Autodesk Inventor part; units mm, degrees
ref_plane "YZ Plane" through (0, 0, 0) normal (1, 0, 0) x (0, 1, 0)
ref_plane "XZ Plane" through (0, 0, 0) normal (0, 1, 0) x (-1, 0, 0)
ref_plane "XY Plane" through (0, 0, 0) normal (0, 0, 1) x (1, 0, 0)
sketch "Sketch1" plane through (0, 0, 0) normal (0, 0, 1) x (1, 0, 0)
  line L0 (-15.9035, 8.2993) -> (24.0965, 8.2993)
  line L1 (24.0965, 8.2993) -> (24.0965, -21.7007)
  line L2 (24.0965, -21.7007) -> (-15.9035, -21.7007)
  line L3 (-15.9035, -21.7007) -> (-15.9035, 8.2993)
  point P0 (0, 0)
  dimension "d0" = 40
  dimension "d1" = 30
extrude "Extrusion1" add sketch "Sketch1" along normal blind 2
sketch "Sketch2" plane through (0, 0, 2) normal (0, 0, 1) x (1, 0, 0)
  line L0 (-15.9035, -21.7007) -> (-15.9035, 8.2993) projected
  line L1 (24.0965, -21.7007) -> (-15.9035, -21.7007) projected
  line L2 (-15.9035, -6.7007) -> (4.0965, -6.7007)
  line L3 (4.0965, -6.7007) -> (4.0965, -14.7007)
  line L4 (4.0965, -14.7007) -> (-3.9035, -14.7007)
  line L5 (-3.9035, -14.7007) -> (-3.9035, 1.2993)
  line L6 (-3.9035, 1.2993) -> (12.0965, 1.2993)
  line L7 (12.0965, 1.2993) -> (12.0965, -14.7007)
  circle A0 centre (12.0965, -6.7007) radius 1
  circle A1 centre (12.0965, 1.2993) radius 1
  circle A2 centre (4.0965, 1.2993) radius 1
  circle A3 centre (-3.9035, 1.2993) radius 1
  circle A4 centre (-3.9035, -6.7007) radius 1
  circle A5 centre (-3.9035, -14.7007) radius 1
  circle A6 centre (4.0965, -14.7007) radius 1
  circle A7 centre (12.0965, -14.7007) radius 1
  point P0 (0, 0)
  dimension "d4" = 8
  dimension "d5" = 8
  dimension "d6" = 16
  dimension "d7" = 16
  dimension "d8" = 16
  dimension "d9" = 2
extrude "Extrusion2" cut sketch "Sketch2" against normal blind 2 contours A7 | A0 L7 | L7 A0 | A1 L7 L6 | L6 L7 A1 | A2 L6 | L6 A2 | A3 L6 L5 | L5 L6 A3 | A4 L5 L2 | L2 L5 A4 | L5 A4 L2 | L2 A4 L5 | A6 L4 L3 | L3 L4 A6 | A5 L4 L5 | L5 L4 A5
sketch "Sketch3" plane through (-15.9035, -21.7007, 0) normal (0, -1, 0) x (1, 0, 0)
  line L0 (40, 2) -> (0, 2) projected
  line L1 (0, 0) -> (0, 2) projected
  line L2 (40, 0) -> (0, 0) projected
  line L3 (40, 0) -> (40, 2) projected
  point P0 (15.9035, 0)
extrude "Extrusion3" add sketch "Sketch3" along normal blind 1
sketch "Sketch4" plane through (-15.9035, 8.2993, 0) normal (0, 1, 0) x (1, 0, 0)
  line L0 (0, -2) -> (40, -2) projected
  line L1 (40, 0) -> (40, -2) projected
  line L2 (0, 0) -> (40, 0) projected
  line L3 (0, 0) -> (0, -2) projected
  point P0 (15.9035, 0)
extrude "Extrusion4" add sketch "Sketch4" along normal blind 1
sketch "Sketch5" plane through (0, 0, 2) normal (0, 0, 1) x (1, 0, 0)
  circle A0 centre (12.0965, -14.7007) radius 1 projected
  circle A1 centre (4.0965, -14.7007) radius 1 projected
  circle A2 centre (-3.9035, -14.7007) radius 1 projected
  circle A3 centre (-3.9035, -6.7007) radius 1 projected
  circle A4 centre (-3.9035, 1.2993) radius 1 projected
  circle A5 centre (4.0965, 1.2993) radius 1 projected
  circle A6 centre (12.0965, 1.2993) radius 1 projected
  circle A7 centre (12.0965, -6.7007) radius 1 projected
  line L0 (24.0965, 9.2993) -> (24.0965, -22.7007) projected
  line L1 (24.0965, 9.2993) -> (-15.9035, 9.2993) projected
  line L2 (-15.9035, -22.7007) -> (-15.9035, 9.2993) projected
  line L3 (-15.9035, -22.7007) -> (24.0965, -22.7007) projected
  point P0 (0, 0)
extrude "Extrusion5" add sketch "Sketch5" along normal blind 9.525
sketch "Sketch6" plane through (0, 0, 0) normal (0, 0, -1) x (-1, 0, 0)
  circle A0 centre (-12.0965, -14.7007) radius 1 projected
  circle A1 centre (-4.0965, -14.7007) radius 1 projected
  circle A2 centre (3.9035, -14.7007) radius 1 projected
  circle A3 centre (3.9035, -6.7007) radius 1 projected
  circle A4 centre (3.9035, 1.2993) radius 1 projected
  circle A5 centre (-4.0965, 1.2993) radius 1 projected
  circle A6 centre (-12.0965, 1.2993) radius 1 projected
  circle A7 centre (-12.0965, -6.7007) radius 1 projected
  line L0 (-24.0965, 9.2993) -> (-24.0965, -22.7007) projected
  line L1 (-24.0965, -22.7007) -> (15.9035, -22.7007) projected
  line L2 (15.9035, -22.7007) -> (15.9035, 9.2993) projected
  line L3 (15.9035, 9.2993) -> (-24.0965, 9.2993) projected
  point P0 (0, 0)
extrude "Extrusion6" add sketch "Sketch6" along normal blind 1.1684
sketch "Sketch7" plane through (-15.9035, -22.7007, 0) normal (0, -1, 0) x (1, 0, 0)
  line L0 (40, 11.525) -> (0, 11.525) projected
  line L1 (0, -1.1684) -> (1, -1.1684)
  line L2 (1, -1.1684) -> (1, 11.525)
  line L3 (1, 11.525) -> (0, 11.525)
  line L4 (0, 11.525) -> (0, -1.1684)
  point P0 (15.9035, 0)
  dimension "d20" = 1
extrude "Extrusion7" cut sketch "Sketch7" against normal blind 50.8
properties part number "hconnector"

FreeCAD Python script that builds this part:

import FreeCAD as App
import Part
import Sketcher
from FreeCAD import Vector

doc = App.newDocument("Part")
body = doc.addObject("PartDesign::Body", "Body")

# Sketch on XY plane
sketch1 = doc.addObject("Sketcher::SketchObject", "Sketch")
body.addObject(sketch1)
sketch1.AttachmentSupport = (doc.XY_Plane, [""])
sketch1.MapMode = "FlatFace"
sketch1.addGeometry([
    Part.LineSegment(Vector(24, 8, 0), Vector(-16, 8, 0)),
    Part.LineSegment(Vector(-16, 8, 0), Vector(-16, -22, 0)),
    Part.LineSegment(Vector(-16, -22, 0), Vector(24, -22, 0)),
    Part.LineSegment(Vector(24, -22, 0), Vector(24, 8, 0)),
], False)
sketch1.addConstraint([
    Sketcher.Constraint("Coincident", 0, 2, 1, 1),
    Sketcher.Constraint("Coincident", 1, 2, 2, 1),
    Sketcher.Constraint("Coincident", 2, 2, 3, 1),
    Sketcher.Constraint("Coincident", 3, 2, 0, 1),
    Sketcher.Constraint("Horizontal", 0),
    Sketcher.Constraint("Vertical", 1),
    Sketcher.Constraint("Horizontal", 2),
    Sketcher.Constraint("Vertical", 3),
    Sketcher.Constraint("DistanceX", 0, 2, 0, 1, 40.0),
    Sketcher.Constraint("DistanceY", 1, 2, 1, 1, 30.0),
    Sketcher.Constraint("DistanceX", 0, 2, -1, 1, 15.9035),
    Sketcher.Constraint("DistanceY", -1, 1, 0, 2, 8.2993),
])
pad1 = doc.addObject("PartDesign::Pad", "Pad")
body.addObject(pad1)
pad1.Profile = sketch1
pad1.Length = 2

# Sketch on XY plane
sketch2 = doc.addObject("Sketcher::SketchObject", "Sketch001")
body.addObject(sketch2)
sketch2.AttachmentSupport = (doc.XY_Plane, [""])
sketch2.MapMode = "FlatFace"
sketch2.AttachmentOffset = App.Placement(Vector(0, 0, 2), App.Rotation())
sketch2.addGeometry([
    Part.Circle(Vector(12.1, -14.7, 0), Vector(0, 0, 1), 1),  # 0
    Part.Circle(Vector(12.1, -6.7, 0), Vector(0, 0, 1), 1),  # 1
    Part.Circle(Vector(12.1, 1.3, 0), Vector(0, 0, 1), 1),  # 2
    Part.Circle(Vector(4.1, 1.3, 0), Vector(0, 0, 1), 1),  # 3
    Part.Circle(Vector(-3.9, 1.3, 0), Vector(0, 0, 1), 1),  # 4
    Part.Circle(Vector(-3.9, -6.7, 0), Vector(0, 0, 1), 1),  # 5
    Part.Circle(Vector(4.1, -14.7, 0), Vector(0, 0, 1), 1),  # 6
    Part.Circle(Vector(-3.9, -14.7, 0), Vector(0, 0, 1), 1),  # 7
], False)
sketch2.addConstraint([
    Sketcher.Constraint("Equal", 0, 1),
    Sketcher.Constraint("Equal", 1, 2),
    Sketcher.Constraint("Equal", 2, 3),
    Sketcher.Constraint("Equal", 3, 4),
    Sketcher.Constraint("Equal", 4, 5),
    Sketcher.Constraint("Equal", 5, 6),
    Sketcher.Constraint("Equal", 6, 7),
    Sketcher.Constraint("Horizontal", 2, 3, 3, 3),
    Sketcher.Constraint("Horizontal", 3, 3, 4, 3),
    Sketcher.Constraint("Horizontal", 1, 3, 5, 3),
    Sketcher.Constraint("Horizontal", 0, 3, 6, 3),
    Sketcher.Constraint("Horizontal", 6, 3, 7, 3),
    Sketcher.Constraint("Vertical", 0, 3, 1, 3),
    Sketcher.Constraint("Vertical", 1, 3, 2, 3),
    Sketcher.Constraint("Vertical", 4, 3, 5, 3),
    Sketcher.Constraint("Vertical", 3, 3, 6, 3),
    Sketcher.Constraint("Vertical", 5, 3, 7, 3),
    Sketcher.Constraint("Diameter", 0, 2.0),
    Sketcher.Constraint("DistanceY", 0, 3, 1, 3, 8.0),
    Sketcher.Constraint("DistanceY", 1, 3, 2, 3, 8.0),
    Sketcher.Constraint("DistanceX", 3, 3, 2, 3, 8.0),
    Sketcher.Constraint("DistanceX", 4, 3, 3, 3, 8.0),
    Sketcher.Constraint("DistanceX", -1, 1, 0, 3, 12.0965),
    Sketcher.Constraint("DistanceY", 0, 3, -1, 1, 14.7007),
])
pocket1 = doc.addObject("PartDesign::Pocket", "Pocket")
body.addObject(pocket1)
pocket1.Profile = sketch2
pocket1.Length = 2

# Sketch on XZ plane
sketch3 = doc.addObject("Sketcher::SketchObject", "Sketch002")
body.addObject(sketch3)
sketch3.AttachmentSupport = (doc.XZ_Plane, [""])
sketch3.MapMode = "FlatFace"
sketch3.AttachmentOffset = App.Placement(Vector(0, 0, 21.7007), App.Rotation())
sketch3.addGeometry([
    Part.LineSegment(Vector(24.1, 0, 0), Vector(24.1, 2, 0)),
    Part.LineSegment(Vector(24.1, 2, 0), Vector(-15.9, 2, 0)),
    Part.LineSegment(Vector(-15.9, 2, 0), Vector(-15.9, 0, 0)),
    Part.LineSegment(Vector(-15.9, 0, 0), Vector(24.1, 0, 0)),
], False)
sketch3.addConstraint([
    Sketcher.Constraint("Coincident", 0, 2, 1, 1),
    Sketcher.Constraint("Coincident", 1, 2, 2, 1),
    Sketcher.Constraint("Coincident", 2, 2, 3, 1),
    Sketcher.Constraint("Coincident", 3, 2, 0, 1),
    Sketcher.Constraint("Vertical", 0),
    Sketcher.Constraint("Horizontal", 1),
    Sketcher.Constraint("Vertical", 2),
    Sketcher.Constraint("Horizontal", 3),
    Sketcher.Constraint("PointOnObject", 2, 2, -1),
    Sketcher.Constraint("DistanceX", 1, 2, 1, 1, 40.0),
    Sketcher.Constraint("DistanceY", 0, 1, 0, 2, 2.0),
    Sketcher.Constraint("DistanceX", -1, 1, 0, 2, 24.0965),
])
pad2 = doc.addObject("PartDesign::Pad", "Pad001")
body.addObject(pad2)
pad2.Profile = sketch3
pad2.Length = 1

# Sketch on XZ plane
sketch4 = doc.addObject("Sketcher::SketchObject", "Sketch003")
body.addObject(sketch4)
sketch4.AttachmentSupport = (doc.XZ_Plane, [""])
sketch4.MapMode = "FlatFace"
sketch4.AttachmentOffset = App.Placement(Vector(0, 0, -8.2993), App.Rotation())
sketch4.addGeometry([
    Part.LineSegment(Vector(-15.9, 0, 0), Vector(-15.9, 2, 0)),
    Part.LineSegment(Vector(-15.9, 2, 0), Vector(24.1, 2, 0)),
    Part.LineSegment(Vector(24.1, 2, 0), Vector(24.1, 0, 0)),
    Part.LineSegment(Vector(24.1, 0, 0), Vector(-15.9, 0, 0)),
], False)
sketch4.addConstraint([
    Sketcher.Constraint("Coincident", 0, 2, 1, 1),
    Sketcher.Constraint("Coincident", 1, 2, 2, 1),
    Sketcher.Constraint("Coincident", 2, 2, 3, 1),
    Sketcher.Constraint("Coincident", 3, 2, 0, 1),
    Sketcher.Constraint("Vertical", 0),
    Sketcher.Constraint("Horizontal", 1),
    Sketcher.Constraint("Vertical", 2),
    Sketcher.Constraint("Horizontal", 3),
    Sketcher.Constraint("PointOnObject", 2, 2, -1),
    Sketcher.Constraint("DistanceX", 1, 1, 1, 2, 40.0),
    Sketcher.Constraint("DistanceY", 0, 1, 0, 2, 2.0),
    Sketcher.Constraint("DistanceX", 0, 2, -1, 1, 15.9035),
])
pad3 = doc.addObject("PartDesign::Pad", "Pad002")
body.addObject(pad3)
pad3.Profile = sketch4
pad3.Length = 1
pad3.Reversed = True

# Sketch on XY plane
sketch5 = doc.addObject("Sketcher::SketchObject", "Sketch004")
body.addObject(sketch5)
sketch5.AttachmentSupport = (doc.XY_Plane, [""])
sketch5.MapMode = "FlatFace"
sketch5.AttachmentOffset = App.Placement(Vector(0, 0, 2), App.Rotation())
sketch5.addGeometry([
    Part.LineSegment(Vector(24.1, -22.7, 0), Vector(24.1, 9.3, 0)),  # 0
    Part.LineSegment(Vector(24.1, 9.3, 0), Vector(-15.9, 9.3, 0)),  # 1
    Part.LineSegment(Vector(-15.9, 9.3, 0), Vector(-15.9, -22.7, 0)),  # 2
    Part.LineSegment(Vector(-15.9, -22.7, 0), Vector(24.1, -22.7, 0)),  # 3
    Part.Circle(Vector(-3.9, -14.7, 0), Vector(0, 0, 1), 1),  # 4
    Part.Circle(Vector(4.1, -14.7, 0), Vector(0, 0, 1), 1),  # 5
    Part.Circle(Vector(12.1, -14.7, 0), Vector(0, 0, 1), 1),  # 6
    Part.Circle(Vector(-3.9, -6.7, 0), Vector(0, 0, 1), 1),  # 7
    Part.Circle(Vector(-3.9, 1.3, 0), Vector(0, 0, 1), 1),  # 8
    Part.Circle(Vector(12.1, -6.7, 0), Vector(0, 0, 1), 1),  # 9
    Part.Circle(Vector(4.1, 1.3, 0), Vector(0, 0, 1), 1),  # 10
    Part.Circle(Vector(12.1, 1.3, 0), Vector(0, 0, 1), 1),  # 11
], False)
sketch5.addConstraint([
    Sketcher.Constraint("Coincident", 0, 2, 1, 1),
    Sketcher.Constraint("Coincident", 1, 2, 2, 1),
    Sketcher.Constraint("Coincident", 2, 2, 3, 1),
    Sketcher.Constraint("Coincident", 3, 2, 0, 1),
    Sketcher.Constraint("Vertical", 0),
    Sketcher.Constraint("Horizontal", 1),
    Sketcher.Constraint("Vertical", 2),
    Sketcher.Constraint("Horizontal", 3),
    Sketcher.Constraint("Equal", 4, 5),
    Sketcher.Constraint("Equal", 5, 6),
    Sketcher.Constraint("Equal", 6, 7),
    Sketcher.Constraint("Equal", 7, 8),
    Sketcher.Constraint("Equal", 8, 9),
    Sketcher.Constraint("Equal", 9, 10),
    Sketcher.Constraint("Equal", 10, 11),
    Sketcher.Constraint("Horizontal", 4, 3, 5, 3),
    Sketcher.Constraint("Horizontal", 5, 3, 6, 3),
    Sketcher.Constraint("Horizontal", 7, 3, 9, 3),
    Sketcher.Constraint("Horizontal", 8, 3, 10, 3),
    Sketcher.Constraint("Horizontal", 10, 3, 11, 3),
    Sketcher.Constraint("Vertical", 4, 3, 7, 3),
    Sketcher.Constraint("Vertical", 7, 3, 8, 3),
    Sketcher.Constraint("Vertical", 6, 3, 9, 3),
    Sketcher.Constraint("Vertical", 5, 3, 10, 3),
    Sketcher.Constraint("Vertical", 9, 3, 11, 3),
    Sketcher.Constraint("Diameter", 4, 2.0),
    Sketcher.Constraint("DistanceX", 1, 2, 1, 1, 40.0),
    Sketcher.Constraint("DistanceY", 0, 1, 0, 2, 32.0),
    Sketcher.Constraint("DistanceX", 4, 3, 5, 3, 8.0),
    Sketcher.Constraint("DistanceX", 5, 3, 6, 3, 8.0),
    Sketcher.Constraint("DistanceY", 4, 3, 7, 3, 8.0),
    Sketcher.Constraint("DistanceY", 7, 3, 8, 3, 8.0),
    Sketcher.Constraint("DistanceX", 11, 3, 0, 2, 12.0),
    Sketcher.Constraint("DistanceY", 11, 3, 0, 2, 8.0),
    Sketcher.Constraint("DistanceX", 4, 3, -1, 1, 3.9035),
    Sketcher.Constraint("DistanceY", 4, 3, -1, 1, 14.7007),
])
pad4 = doc.addObject("PartDesign::Pad", "Pad003")
body.addObject(pad4)
pad4.Profile = sketch5
pad4.Length = 9.525

# Sketch on XY plane
sketch6 = doc.addObject("Sketcher::SketchObject", "Sketch005")
body.addObject(sketch6)
sketch6.AttachmentSupport = (doc.XY_Plane, [""])
sketch6.MapMode = "FlatFace"
sketch6.addGeometry([
    Part.LineSegment(Vector(-15.9, 9.3, 0), Vector(24.1, 9.3, 0)),  # 0
    Part.LineSegment(Vector(24.1, 9.3, 0), Vector(24.1, -22.7, 0)),  # 1
    Part.LineSegment(Vector(24.1, -22.7, 0), Vector(-15.9, -22.7, 0)),  # 2
    Part.LineSegment(Vector(-15.9, -22.7, 0), Vector(-15.9, 9.3, 0)),  # 3
    Part.Circle(Vector(12.1, -14.7, 0), Vector(0, 0, 1), 1),  # 4
    Part.Circle(Vector(4.1, -14.7, 0), Vector(0, 0, 1), 1),  # 5
    Part.Circle(Vector(-3.9, -14.7, 0), Vector(0, 0, 1), 1),  # 6
    Part.Circle(Vector(12.1, -6.7, 0), Vector(0, 0, 1), 1),  # 7
    Part.Circle(Vector(12.1, 1.3, 0), Vector(0, 0, 1), 1),  # 8
    Part.Circle(Vector(-3.9, -6.7, 0), Vector(0, 0, 1), 1),  # 9
    Part.Circle(Vector(4.1, 1.3, 0), Vector(0, 0, 1), 1),  # 10
    Part.Circle(Vector(-3.9, 1.3, 0), Vector(0, 0, 1), 1),  # 11
], False)
sketch6.addConstraint([
    Sketcher.Constraint("Coincident", 0, 2, 1, 1),
    Sketcher.Constraint("Coincident", 1, 2, 2, 1),
    Sketcher.Constraint("Coincident", 2, 2, 3, 1),
    Sketcher.Constraint("Coincident", 3, 2, 0, 1),
    Sketcher.Constraint("Horizontal", 0),
    Sketcher.Constraint("Vertical", 1),
    Sketcher.Constraint("Horizontal", 2),
    Sketcher.Constraint("Vertical", 3),
    Sketcher.Constraint("Equal", 4, 5),
    Sketcher.Constraint("Equal", 5, 6),
    Sketcher.Constraint("Equal", 6, 7),
    Sketcher.Constraint("Equal", 7, 8),
    Sketcher.Constraint("Equal", 8, 9),
    Sketcher.Constraint("Equal", 9, 10),
    Sketcher.Constraint("Equal", 10, 11),
    Sketcher.Constraint("Horizontal", 4, 3, 5, 3),
    Sketcher.Constraint("Horizontal", 5, 3, 6, 3),
    Sketcher.Constraint("Horizontal", 7, 3, 9, 3),
    Sketcher.Constraint("Horizontal", 8, 3, 10, 3),
    Sketcher.Constraint("Horizontal", 10, 3, 11, 3),
    Sketcher.Constraint("Vertical", 4, 3, 7, 3),
    Sketcher.Constraint("Vertical", 7, 3, 8, 3),
    Sketcher.Constraint("Vertical", 6, 3, 9, 3),
    Sketcher.Constraint("Vertical", 5, 3, 10, 3),
    Sketcher.Constraint("Vertical", 9, 3, 11, 3),
    Sketcher.Constraint("Diameter", 4, 2.0),
    Sketcher.Constraint("DistanceX", 0, 1, 0, 2, 40.0),
    Sketcher.Constraint("DistanceY", 1, 2, 1, 1, 32.0),
    Sketcher.Constraint("DistanceX", 5, 3, 4, 3, 8.0),
    Sketcher.Constraint("DistanceX", 6, 3, 5, 3, 8.0),
    Sketcher.Constraint("DistanceY", 4, 3, 7, 3, 8.0),
    Sketcher.Constraint("DistanceY", 7, 3, 8, 3, 8.0),
    Sketcher.Constraint("DistanceX", 8, 3, 0, 2, 12.0),
    Sketcher.Constraint("DistanceY", 8, 3, 0, 2, 8.0),
    Sketcher.Constraint("DistanceX", -1, 1, 4, 3, 12.0965),
    Sketcher.Constraint("DistanceY", 4, 3, -1, 1, 14.7007),
])
pad5 = doc.addObject("PartDesign::Pad", "Pad004")
body.addObject(pad5)
pad5.Profile = sketch6
pad5.Length = 1.1684
pad5.Reversed = True

# Sketch on XZ plane
sketch7 = doc.addObject("Sketcher::SketchObject", "Sketch006")
body.addObject(sketch7)
sketch7.AttachmentSupport = (doc.XZ_Plane, [""])
sketch7.MapMode = "FlatFace"
sketch7.AttachmentOffset = App.Placement(Vector(0, 0, 22.7007), App.Rotation())
sketch7.addGeometry([
    Part.LineSegment(Vector(-14.9, -1.2, 0), Vector(-14.9, 11.5, 0)),
    Part.LineSegment(Vector(-14.9, 11.5, 0), Vector(-15.9, 11.5, 0)),
    Part.LineSegment(Vector(-15.9, 11.5, 0), Vector(-15.9, -1.2, 0)),
    Part.LineSegment(Vector(-15.9, -1.2, 0), Vector(-14.9, -1.2, 0)),
], False)
sketch7.addConstraint([
    Sketcher.Constraint("Coincident", 0, 2, 1, 1),
    Sketcher.Constraint("Coincident", 1, 2, 2, 1),
    Sketcher.Constraint("Coincident", 2, 2, 3, 1),
    Sketcher.Constraint("Coincident", 3, 2, 0, 1),
    Sketcher.Constraint("Vertical", 0),
    Sketcher.Constraint("Horizontal", 1),
    Sketcher.Constraint("Vertical", 2),
    Sketcher.Constraint("Horizontal", 3),
    Sketcher.Constraint("DistanceX", 1, 2, 1, 1, 1.0),
    Sketcher.Constraint("DistanceY", 0, 1, 0, 2, 12.6934),
    Sketcher.Constraint("DistanceY", -1, 1, 0, 2, 11.525),
    Sketcher.Constraint("DistanceX", 0, 2, -1, 1, 14.9035),
])
pocket2 = doc.addObject("PartDesign::Pocket", "Pocket001")
body.addObject(pocket2)
pocket2.Profile = sketch7
pocket2.Length = 50.8

doc.recompute()
